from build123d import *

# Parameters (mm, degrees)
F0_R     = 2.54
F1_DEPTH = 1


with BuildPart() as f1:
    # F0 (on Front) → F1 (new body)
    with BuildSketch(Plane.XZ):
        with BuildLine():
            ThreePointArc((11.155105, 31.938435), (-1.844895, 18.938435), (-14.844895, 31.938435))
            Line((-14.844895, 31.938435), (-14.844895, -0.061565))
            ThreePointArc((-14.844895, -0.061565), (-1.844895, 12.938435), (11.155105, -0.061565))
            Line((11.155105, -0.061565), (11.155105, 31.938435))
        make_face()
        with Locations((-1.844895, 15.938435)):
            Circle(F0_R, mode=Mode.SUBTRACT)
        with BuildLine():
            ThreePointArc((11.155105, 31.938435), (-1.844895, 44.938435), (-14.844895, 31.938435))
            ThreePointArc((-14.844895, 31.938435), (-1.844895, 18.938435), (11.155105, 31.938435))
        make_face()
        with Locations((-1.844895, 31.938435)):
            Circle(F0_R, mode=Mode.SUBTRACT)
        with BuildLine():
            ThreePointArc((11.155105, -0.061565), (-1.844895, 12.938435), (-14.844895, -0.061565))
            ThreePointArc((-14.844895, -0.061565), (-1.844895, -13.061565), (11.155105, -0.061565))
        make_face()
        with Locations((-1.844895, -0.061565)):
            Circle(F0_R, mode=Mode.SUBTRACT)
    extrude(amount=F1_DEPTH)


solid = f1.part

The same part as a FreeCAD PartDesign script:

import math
import FreeCAD as App
import Part
import Sketcher
from FreeCAD import Vector
Q = App.Units.Quantity

doc = App.newDocument("Part")
body = doc.addObject("PartDesign::Body", "Body")

# Sketch on XZ plane
sketch1 = doc.addObject("Sketcher::SketchObject", "Sketch")
body.addObject(sketch1)
sketch1.AttachmentSupport = (doc.XZ_Plane, [""])
sketch1.MapMode = "FlatFace"
sketch1.addGeometry(Part.LineSegment(Vector(11.2, -0.1, 0), Vector(11.2, 31.9, 0)), False)
sketch1.addGeometry(Part.ArcOfCircle(Part.Circle(Vector(-1.8, 31.9, 0), Vector(0, 0, 1), 13), math.radians(0), math.radians(180)), False)
sketch1.addGeometry(Part.LineSegment(Vector(-14.8, 31.9, 0), Vector(-14.8, -0.1, 0)), False)
sketch1.addGeometry(Part.ArcOfCircle(Part.Circle(Vector(-1.8, -0.1, 0), Vector(0, 0, 1), 13), math.radians(180), math.radians(360)), False)
sketch1.addGeometry(Part.Circle(Vector(-1.8, -0.1, 0), Vector(0, 0, 1), 2.5), False)
sketch1.addGeometry(Part.Circle(Vector(-1.8, 15.9, 0), Vector(0, 0, 1), 2.5), False)
sketch1.addGeometry(Part.Circle(Vector(-1.8, 31.9, 0), Vector(0, 0, 1), 2.5), False)
sketch1.addConstraint(Sketcher.Constraint("Tangent", 0, 2, 1, 1))
sketch1.addConstraint(Sketcher.Constraint("Tangent", 1, 2, 2, 1))
sketch1.addConstraint(Sketcher.Constraint("Tangent", 2, 2, 3, 1))
sketch1.addConstraint(Sketcher.Constraint("Tangent", 3, 2, 0, 1))
sketch1.addConstraint(Sketcher.Constraint("Vertical", 0))
sketch1.addConstraint(Sketcher.Constraint("Vertical", 2))
sketch1.addConstraint(Sketcher.Constraint("Coincident", 4, 3, 3, 3))
sketch1.addConstraint(Sketcher.Constraint("Coincident", 6, 3, 1, 3))
sketch1.addConstraint(Sketcher.Constraint("Equal", 4, 5))
sketch1.addConstraint(Sketcher.Constraint("Equal", 5, 6))
sketch1.addConstraint(Sketcher.Constraint("Vertical", 4, 3, 5, 3))
sketch1.addConstraint(Sketcher.Constraint("Radius", 1, Q("13 mm")))
sketch1.addConstraint(Sketcher.Constraint("Diameter", 4, Q("5.08 mm")))
sketch1.addConstraint(Sketcher.Constraint("DistanceY", 0, 1, 0, 2, Q("32 mm")))
sketch1.addConstraint(Sketcher.Constraint("DistanceY", 5, 3, 1, 3, Q("16 mm")))
sketch1.addConstraint(Sketcher.Constraint("DistanceX", 1, 3, -1, 1, Q("1.844895 mm")))
sketch1.addConstraint(Sketcher.Constraint("DistanceY", -1, 1, 1, 3, Q("31.938435 mm")))
pad1 = doc.addObject("PartDesign::Pad", "Pad")
body.addObject(pad1)
pad1.Profile = sketch1
pad1.Length = 1

doc.recompute()
